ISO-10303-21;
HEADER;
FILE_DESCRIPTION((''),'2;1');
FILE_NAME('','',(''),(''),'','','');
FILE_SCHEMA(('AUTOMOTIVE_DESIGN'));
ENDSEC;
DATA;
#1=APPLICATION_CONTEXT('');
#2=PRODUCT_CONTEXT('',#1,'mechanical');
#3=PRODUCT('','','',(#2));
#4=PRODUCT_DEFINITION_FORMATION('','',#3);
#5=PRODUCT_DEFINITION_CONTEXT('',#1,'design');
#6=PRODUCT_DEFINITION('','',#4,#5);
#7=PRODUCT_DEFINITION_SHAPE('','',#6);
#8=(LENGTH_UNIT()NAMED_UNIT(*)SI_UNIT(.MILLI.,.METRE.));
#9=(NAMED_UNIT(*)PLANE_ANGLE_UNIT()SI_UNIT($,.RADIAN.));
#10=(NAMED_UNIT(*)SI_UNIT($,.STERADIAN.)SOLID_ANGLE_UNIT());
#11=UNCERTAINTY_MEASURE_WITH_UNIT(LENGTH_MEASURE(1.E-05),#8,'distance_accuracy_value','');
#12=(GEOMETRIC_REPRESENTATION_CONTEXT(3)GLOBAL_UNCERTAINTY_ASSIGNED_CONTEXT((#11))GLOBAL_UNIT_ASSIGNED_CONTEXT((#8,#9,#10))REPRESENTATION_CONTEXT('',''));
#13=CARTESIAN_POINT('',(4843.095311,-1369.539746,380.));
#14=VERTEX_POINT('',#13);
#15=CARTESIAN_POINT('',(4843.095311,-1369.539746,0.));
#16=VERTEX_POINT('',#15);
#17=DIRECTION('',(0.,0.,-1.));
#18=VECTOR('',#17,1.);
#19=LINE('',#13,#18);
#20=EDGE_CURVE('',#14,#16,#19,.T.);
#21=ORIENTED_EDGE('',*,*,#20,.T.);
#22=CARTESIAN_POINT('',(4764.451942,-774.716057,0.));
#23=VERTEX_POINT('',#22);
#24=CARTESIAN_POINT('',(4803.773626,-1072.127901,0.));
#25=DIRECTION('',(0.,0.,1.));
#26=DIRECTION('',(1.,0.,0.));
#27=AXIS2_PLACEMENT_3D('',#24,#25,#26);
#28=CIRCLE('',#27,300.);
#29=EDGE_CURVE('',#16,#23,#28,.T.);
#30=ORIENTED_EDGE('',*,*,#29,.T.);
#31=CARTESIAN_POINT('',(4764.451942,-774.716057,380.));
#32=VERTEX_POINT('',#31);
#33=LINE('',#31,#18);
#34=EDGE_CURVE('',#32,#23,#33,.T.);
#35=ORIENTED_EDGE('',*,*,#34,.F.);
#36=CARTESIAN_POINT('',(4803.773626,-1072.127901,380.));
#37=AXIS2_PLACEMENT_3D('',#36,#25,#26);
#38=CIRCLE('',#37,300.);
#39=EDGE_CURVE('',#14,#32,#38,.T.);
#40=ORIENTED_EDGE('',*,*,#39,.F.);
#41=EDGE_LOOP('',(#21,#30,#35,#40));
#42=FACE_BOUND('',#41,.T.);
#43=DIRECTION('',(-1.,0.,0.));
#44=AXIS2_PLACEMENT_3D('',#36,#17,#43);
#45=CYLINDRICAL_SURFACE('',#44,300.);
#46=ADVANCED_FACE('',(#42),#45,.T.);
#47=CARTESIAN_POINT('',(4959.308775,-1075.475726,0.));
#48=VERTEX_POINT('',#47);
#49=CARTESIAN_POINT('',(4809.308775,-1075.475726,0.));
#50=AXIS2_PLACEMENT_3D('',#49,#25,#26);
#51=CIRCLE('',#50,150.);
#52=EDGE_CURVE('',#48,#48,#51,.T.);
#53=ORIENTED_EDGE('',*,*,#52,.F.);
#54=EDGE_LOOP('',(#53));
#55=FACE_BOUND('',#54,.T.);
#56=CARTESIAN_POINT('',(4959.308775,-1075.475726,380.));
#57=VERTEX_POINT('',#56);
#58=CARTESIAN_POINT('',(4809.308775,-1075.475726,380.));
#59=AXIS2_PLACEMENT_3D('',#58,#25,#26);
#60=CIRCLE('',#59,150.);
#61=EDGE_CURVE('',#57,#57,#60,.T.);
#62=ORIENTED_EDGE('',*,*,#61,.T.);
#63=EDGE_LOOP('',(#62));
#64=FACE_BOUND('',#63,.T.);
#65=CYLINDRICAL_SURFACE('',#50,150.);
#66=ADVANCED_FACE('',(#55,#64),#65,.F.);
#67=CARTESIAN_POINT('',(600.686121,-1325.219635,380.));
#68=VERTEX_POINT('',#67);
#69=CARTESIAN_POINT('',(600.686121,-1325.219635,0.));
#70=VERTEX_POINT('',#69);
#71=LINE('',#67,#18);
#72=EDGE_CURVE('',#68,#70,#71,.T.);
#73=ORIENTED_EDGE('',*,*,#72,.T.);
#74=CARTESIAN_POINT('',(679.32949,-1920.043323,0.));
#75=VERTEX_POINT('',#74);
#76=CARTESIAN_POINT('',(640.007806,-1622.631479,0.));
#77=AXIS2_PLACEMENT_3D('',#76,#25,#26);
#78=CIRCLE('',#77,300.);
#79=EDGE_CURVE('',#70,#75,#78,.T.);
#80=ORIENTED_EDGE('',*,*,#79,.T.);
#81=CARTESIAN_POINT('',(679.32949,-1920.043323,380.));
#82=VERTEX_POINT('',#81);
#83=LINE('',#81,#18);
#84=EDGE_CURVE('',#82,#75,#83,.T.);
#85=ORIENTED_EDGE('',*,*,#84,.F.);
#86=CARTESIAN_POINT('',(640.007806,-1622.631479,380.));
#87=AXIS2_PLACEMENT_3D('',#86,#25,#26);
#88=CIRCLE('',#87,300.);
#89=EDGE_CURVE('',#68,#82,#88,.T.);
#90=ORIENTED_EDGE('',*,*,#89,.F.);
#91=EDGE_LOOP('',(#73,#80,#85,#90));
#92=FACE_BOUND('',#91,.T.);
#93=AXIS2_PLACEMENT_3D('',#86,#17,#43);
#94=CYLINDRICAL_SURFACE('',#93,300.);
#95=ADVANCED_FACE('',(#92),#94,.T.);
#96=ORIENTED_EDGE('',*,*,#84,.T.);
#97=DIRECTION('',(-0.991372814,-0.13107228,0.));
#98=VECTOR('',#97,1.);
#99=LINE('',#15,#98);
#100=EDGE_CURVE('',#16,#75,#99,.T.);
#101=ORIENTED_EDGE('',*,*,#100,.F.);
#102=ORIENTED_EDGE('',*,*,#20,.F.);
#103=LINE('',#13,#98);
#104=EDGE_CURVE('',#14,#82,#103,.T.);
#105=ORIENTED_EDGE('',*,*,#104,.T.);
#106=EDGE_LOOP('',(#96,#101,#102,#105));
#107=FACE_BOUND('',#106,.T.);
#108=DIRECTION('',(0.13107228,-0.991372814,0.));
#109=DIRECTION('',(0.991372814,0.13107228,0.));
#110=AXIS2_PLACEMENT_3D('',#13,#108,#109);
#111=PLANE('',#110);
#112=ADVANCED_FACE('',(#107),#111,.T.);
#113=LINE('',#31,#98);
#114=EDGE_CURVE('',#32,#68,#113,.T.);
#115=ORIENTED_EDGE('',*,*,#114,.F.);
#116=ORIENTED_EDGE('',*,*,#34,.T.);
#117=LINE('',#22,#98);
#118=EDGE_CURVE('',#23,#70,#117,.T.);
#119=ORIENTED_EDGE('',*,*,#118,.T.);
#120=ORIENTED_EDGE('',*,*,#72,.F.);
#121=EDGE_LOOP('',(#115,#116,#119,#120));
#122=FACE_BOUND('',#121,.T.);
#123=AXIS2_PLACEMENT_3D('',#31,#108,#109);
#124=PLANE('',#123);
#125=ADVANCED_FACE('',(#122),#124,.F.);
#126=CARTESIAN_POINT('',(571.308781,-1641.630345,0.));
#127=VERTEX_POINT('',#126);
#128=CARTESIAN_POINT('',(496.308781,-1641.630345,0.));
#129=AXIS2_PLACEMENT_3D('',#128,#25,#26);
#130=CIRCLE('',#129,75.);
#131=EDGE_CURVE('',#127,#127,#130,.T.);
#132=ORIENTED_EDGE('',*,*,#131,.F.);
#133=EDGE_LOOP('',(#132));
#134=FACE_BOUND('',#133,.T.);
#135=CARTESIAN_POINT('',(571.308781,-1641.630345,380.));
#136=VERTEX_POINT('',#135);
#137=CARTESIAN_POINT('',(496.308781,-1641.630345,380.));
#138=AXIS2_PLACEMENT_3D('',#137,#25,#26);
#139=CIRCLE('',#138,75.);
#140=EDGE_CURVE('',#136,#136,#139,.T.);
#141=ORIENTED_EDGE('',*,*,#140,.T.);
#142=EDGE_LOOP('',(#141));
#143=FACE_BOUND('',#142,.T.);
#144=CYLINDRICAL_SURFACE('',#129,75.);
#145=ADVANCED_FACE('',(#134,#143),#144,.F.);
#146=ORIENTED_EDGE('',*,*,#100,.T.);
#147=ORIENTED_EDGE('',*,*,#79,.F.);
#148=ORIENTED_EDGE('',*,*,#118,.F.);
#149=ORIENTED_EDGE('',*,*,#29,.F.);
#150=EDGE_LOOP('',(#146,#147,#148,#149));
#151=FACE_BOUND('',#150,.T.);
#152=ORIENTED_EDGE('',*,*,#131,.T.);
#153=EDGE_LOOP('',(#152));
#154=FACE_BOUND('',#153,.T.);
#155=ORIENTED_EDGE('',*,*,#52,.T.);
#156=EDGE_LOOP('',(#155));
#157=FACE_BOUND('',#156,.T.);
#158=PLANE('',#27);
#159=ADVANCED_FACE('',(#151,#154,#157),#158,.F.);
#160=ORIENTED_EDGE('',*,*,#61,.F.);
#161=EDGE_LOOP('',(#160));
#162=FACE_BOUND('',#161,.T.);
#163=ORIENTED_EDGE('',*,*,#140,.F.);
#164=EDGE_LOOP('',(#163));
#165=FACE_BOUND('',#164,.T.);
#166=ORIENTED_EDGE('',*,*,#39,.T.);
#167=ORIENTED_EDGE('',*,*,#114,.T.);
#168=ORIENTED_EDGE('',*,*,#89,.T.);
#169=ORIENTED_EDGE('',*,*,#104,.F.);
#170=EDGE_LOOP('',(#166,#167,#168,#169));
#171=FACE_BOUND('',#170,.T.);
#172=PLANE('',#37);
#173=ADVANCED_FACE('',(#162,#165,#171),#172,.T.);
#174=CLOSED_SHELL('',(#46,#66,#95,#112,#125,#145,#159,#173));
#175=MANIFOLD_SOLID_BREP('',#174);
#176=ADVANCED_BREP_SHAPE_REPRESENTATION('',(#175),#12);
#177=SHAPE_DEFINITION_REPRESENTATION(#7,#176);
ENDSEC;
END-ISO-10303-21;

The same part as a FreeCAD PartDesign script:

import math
import FreeCAD as App
import Part
import Sketcher
Q = App.Units.Quantity

doc = App.newDocument("Part")
body = doc.addObject("PartDesign::Body", "Body")

sketch1 = body.newObject("Sketcher::SketchObject", "Sketch")
sketch1.AttachmentSupport = (doc.getObject("XY_Plane"), [""])
sketch1.MapMode = "FlatFace"
sketch1.addGeometry([
    Part.LineSegment(App.Vector(4764, -775, 0), App.Vector(601, -1325, 0)),
    Part.ArcOfCircle(Part.Circle(App.Vector(640, -1623, 0), App.Vector(0, 0, 1), 300), math.radians(98), math.radians(278)),
    Part.LineSegment(App.Vector(679, -1920, 0), App.Vector(4843, -1370, 0)),
    Part.ArcOfCircle(Part.Circle(App.Vector(4804, -1072, 0), App.Vector(0, 0, 1), 300), math.radians(-82), math.radians(98)),
], False)
sketch1.addConstraint([
    Sketcher.Constraint("Tangent", 0, 2, 1, 1),
    Sketcher.Constraint("Tangent", 1, 2, 2, 1),
    Sketcher.Constraint("Tangent", 2, 2, 3, 1),
    Sketcher.Constraint("Tangent", 3, 2, 0, 1),
    Sketcher.Constraint("Equal", 1, 3),
    Sketcher.Constraint("Radius", 1, Q("300 mm")),
    Sketcher.Constraint("Distance", 0, Q("4200 mm")),
    Sketcher.Constraint("DistanceY", 3, 3, -1, 1, Q("1072.127901 mm")),
    Sketcher.Constraint("DistanceY", 1, 3, -1, 1, Q("1622.631479 mm")),
    Sketcher.Constraint("DistanceX", -1, 1, 0, 2, Q("600.686121 mm")),
])
pad1 = body.newObject("PartDesign::Pad", "Pad")
pad1.Profile = sketch1
pad1.Length = 380

sketch2 = body.newObject("Sketcher::SketchObject", "Sketch001")
sketch2.AttachmentSupport = (doc.getObject("XY_Plane"), [""])
sketch2.MapMode = "FlatFace"
sketch2.AttachmentOffset = App.Placement(App.Vector(0, 0, 380), App.Rotation())
sketch2.addGeometry(Part.Circle(App.Vector(4809, -1075, 0), App.Vector(0, 0, 1), 150), False)
sketch2.addConstraint([
    Sketcher.Constraint("Diameter", 0, Q("300 mm")),
    Sketcher.Constraint("DistanceX", -1, 1, 0, 3, Q("4809.308775 mm")),
    Sketcher.Constraint("DistanceY", 0, 3, -1, 1, Q("1075.475726 mm")),
])
pocket1 = body.newObject("PartDesign::Pocket", "Pocket")
pocket1.Profile = sketch2
pocket1.Type = "ThroughAll"

sketch3 = body.newObject("Sketcher::SketchObject", "Sketch002")
sketch3.AttachmentSupport = (doc.getObject("XY_Plane"), [""])
sketch3.MapMode = "FlatFace"
sketch3.AttachmentOffset = App.Placement(App.Vector(0, 0, 380), App.Rotation())
sketch3.addGeometry(Part.Circle(App.Vector(496, -1642, 0), App.Vector(0, 0, 1), 75), False)
sketch3.addConstraint([
    Sketcher.Constraint("Diameter", 0, Q("150 mm")),
    Sketcher.Constraint("DistanceX", -1, 1, 0, 3, Q("496.308781 mm")),
    Sketcher.Constraint("DistanceY", 0, 3, -1, 1, Q("1641.630345 mm")),
])
pocket2 = body.newObject("PartDesign::Pocket", "Pocket001")
pocket2.Profile = sketch3
pocket2.Type = "ThroughAll"

doc.recompute()
